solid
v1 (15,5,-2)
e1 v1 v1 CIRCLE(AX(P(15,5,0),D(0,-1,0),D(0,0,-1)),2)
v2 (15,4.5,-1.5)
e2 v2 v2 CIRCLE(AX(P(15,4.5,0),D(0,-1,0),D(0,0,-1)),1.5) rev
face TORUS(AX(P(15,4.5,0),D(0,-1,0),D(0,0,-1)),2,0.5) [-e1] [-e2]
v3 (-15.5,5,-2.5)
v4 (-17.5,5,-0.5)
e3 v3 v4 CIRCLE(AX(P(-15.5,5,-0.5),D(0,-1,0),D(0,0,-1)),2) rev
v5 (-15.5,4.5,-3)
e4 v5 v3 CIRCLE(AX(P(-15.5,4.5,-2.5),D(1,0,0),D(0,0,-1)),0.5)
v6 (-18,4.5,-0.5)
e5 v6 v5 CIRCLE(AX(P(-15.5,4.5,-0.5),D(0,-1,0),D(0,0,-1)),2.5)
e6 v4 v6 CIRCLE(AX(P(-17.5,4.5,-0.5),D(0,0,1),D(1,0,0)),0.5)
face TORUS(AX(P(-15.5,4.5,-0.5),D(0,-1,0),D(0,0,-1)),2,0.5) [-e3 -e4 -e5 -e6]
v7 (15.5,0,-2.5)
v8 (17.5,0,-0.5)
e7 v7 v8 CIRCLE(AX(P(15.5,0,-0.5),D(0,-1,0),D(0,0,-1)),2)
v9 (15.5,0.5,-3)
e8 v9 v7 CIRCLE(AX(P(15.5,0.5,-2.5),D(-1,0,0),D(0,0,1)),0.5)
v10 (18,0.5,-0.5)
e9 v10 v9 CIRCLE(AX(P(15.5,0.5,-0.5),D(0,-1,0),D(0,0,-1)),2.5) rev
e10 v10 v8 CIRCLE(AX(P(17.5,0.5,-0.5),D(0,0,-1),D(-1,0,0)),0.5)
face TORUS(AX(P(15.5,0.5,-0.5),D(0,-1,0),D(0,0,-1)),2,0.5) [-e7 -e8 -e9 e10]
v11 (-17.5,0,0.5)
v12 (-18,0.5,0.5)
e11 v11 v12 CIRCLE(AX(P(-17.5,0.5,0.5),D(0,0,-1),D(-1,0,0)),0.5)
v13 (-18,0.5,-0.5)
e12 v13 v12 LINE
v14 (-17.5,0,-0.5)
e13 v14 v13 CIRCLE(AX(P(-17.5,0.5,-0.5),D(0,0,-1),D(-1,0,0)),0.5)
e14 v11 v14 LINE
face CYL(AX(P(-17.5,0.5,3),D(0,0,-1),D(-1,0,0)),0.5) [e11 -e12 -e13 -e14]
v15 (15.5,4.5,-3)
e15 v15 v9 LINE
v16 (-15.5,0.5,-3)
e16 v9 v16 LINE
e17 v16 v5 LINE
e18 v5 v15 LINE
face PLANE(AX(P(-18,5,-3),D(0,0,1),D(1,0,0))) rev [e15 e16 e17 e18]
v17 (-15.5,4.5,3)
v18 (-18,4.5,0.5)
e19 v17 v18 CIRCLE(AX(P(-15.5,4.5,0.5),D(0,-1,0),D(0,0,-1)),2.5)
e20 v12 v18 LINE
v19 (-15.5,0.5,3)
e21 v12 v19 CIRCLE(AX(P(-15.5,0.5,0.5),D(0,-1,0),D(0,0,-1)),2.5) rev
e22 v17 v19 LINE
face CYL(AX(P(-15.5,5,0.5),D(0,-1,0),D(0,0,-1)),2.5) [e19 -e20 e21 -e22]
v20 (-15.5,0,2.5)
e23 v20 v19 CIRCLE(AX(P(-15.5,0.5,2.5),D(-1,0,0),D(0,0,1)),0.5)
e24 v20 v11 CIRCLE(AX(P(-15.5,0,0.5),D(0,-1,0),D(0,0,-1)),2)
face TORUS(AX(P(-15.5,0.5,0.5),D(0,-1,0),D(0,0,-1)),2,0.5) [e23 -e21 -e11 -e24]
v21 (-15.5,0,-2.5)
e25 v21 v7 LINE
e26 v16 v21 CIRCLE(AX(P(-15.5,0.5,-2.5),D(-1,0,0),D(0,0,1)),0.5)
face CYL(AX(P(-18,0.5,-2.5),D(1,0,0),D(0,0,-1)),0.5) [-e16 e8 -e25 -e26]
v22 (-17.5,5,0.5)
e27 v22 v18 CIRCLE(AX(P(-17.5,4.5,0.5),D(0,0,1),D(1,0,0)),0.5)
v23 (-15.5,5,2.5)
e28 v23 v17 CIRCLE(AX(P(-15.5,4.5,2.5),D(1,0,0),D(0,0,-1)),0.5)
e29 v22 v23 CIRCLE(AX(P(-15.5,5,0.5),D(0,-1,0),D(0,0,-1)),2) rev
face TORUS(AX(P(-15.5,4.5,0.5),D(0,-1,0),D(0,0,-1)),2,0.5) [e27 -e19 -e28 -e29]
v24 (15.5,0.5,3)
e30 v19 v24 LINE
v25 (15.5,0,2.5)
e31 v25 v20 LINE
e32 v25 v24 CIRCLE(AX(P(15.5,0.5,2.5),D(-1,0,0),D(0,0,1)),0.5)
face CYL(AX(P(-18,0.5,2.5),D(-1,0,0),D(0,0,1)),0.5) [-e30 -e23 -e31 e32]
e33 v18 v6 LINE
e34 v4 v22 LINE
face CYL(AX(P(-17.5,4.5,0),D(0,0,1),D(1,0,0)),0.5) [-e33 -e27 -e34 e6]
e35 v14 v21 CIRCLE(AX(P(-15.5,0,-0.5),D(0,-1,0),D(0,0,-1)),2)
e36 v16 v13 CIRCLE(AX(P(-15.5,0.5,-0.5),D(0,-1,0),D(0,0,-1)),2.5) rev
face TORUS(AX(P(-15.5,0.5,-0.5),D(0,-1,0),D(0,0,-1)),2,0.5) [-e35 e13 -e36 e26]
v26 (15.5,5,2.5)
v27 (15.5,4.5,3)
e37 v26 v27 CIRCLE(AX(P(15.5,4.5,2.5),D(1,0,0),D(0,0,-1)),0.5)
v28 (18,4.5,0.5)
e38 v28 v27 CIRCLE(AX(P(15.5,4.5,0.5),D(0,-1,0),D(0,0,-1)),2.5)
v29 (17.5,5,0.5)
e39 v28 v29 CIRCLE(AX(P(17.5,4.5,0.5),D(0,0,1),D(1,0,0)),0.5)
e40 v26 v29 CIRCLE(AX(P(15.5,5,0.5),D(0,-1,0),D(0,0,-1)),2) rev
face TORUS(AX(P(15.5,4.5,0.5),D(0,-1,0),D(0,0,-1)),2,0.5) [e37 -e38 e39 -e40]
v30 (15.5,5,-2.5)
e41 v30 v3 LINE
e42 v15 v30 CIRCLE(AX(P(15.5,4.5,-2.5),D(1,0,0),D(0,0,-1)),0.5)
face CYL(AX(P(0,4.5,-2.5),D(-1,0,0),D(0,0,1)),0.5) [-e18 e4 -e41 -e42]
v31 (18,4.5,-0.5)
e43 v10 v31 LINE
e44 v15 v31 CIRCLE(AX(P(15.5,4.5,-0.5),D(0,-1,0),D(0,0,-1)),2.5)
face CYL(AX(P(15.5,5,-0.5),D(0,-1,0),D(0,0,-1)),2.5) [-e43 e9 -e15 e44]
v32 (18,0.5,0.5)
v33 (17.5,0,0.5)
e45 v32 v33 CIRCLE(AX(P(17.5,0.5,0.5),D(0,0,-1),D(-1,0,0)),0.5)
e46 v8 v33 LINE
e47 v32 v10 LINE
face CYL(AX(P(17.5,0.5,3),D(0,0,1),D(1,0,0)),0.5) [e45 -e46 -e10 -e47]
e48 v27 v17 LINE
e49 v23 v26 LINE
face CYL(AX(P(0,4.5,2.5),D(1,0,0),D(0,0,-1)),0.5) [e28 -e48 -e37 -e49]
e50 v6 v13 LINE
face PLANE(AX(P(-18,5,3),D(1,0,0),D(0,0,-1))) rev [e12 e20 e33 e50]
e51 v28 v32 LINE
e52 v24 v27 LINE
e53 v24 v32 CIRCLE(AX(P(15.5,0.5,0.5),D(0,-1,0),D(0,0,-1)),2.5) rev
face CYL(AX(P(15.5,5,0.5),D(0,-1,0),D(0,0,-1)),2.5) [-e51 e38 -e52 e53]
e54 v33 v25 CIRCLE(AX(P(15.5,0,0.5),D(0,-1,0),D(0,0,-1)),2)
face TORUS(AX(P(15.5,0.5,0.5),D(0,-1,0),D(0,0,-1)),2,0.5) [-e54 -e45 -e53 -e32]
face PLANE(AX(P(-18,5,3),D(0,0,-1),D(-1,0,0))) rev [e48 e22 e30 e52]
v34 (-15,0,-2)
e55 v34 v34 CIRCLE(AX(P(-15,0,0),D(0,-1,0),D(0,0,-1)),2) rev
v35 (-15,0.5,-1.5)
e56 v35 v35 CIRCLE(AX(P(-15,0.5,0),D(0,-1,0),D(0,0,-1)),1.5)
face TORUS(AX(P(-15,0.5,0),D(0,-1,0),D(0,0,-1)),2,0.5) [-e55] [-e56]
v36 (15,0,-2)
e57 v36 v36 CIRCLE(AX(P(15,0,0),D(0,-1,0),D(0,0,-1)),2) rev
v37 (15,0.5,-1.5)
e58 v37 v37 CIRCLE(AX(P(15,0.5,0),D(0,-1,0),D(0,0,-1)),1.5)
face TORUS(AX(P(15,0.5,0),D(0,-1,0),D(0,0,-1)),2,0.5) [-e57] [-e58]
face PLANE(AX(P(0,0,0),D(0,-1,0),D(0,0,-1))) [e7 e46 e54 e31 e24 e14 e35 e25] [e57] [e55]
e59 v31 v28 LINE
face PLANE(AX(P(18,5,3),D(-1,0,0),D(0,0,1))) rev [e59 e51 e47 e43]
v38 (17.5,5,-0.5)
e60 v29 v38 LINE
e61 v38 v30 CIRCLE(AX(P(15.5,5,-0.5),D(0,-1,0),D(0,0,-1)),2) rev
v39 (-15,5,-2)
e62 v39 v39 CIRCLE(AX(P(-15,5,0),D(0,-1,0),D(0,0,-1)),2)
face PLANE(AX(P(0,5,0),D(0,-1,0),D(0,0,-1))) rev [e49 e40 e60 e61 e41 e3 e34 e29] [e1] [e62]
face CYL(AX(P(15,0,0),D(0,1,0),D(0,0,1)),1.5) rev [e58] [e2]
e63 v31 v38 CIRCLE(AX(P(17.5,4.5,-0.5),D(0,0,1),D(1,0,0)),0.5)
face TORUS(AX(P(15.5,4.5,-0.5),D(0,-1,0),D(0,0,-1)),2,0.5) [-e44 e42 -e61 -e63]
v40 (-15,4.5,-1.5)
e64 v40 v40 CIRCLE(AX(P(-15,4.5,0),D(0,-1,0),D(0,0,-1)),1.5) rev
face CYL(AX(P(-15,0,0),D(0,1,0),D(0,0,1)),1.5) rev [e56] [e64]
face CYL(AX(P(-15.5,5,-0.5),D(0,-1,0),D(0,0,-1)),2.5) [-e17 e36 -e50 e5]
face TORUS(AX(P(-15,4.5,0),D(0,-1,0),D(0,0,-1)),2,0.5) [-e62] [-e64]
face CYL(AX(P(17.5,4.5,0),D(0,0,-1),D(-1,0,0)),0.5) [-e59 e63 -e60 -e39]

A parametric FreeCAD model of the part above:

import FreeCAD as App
import Part
import Sketcher


def edges_at(feature, points):
    """Names of the edges that pass closest to the given points."""
    edges = feature.Shape.Edges
    near = lambda p: min(range(len(edges)), key=lambda i: edges[i].distToShape(Part.Vertex(*p))[0])
    return sorted({f"Edge{near(p) + 1}" for p in points})

doc = App.newDocument("Part")
body = doc.addObject("PartDesign::Body", "Body")

# Sketch on XZ plane
sketch1 = body.newObject("Sketcher::SketchObject", "Sketch")
sketch1.AttachmentSupport = (doc.getObject("XZ_Plane"), [""])
sketch1.MapMode = "FlatFace"
sketch1.addGeometry(Part.LineSegment(App.Vector(-18, -3, 0), App.Vector(-18, 3, 0)), False)
sketch1.addGeometry(Part.LineSegment(App.Vector(-18, 3, 0), App.Vector(18, 3, 0)), False)
sketch1.addGeometry(Part.LineSegment(App.Vector(18, 3, 0), App.Vector(18, -3, 0)), False)
sketch1.addGeometry(Part.LineSegment(App.Vector(18, -3, 0), App.Vector(-18, -3, 0)), False)
sketch1.addConstraint(Sketcher.Constraint("Coincident", 0, 2, 1, 1))
sketch1.addConstraint(Sketcher.Constraint("Coincident", 1, 2, 2, 1))
sketch1.addConstraint(Sketcher.Constraint("Coincident", 2, 2, 3, 1))
sketch1.addConstraint(Sketcher.Constraint("Coincident", 3, 2, 0, 1))
sketch1.addConstraint(Sketcher.Constraint("Vertical", 0))
sketch1.addConstraint(Sketcher.Constraint("Horizontal", 1))
sketch1.addConstraint(Sketcher.Constraint("Vertical", 2))
sketch1.addConstraint(Sketcher.Constraint("Horizontal", 3))
sketch1.addConstraint(Sketcher.Constraint("Symmetric", 0, 2, 2, 2, -1, 1))
sketch1.addConstraint(Sketcher.Constraint("DistanceX", 1, 1, 1, 2, 36.0))
sketch1.addConstraint(Sketcher.Constraint("DistanceY", 0, 1, 0, 2, 6.0))
pad1 = body.newObject("PartDesign::Pad", "Pad")
pad1.Profile = sketch1
pad1.Length = 5
pad1.Reversed = True

# Sketch on XZ plane
sketch2 = body.newObject("Sketcher::SketchObject", "Sketch001")
sketch2.AttachmentSupport = (doc.getObject("XZ_Plane"), [""])
sketch2.MapMode = "FlatFace"
sketch2.AttachmentOffset = App.Placement(App.Vector(0, 0, -5), App.Rotation())
sketch2.addGeometry(Part.Circle(App.Vector(-15, 0, 0), App.Vector(0, 0, 1), 1.5), False)
sketch2.addGeometry(Part.Circle(App.Vector(15, 0, 0), App.Vector(0, 0, 1), 1.5), False)
sketch2.addConstraint(Sketcher.Constraint("Equal", 0, 1))
sketch2.addConstraint(Sketcher.Constraint("Symmetric", 0, 3, 1, 3, -1, 1))
sketch2.addConstraint(Sketcher.Constraint("PointOnObject", 0, 3, -1))
sketch2.addConstraint(Sketcher.Constraint("Diameter", 0, 3.0))
sketch2.addConstraint(Sketcher.Constraint("DistanceX", 0, 3, -1, 1, 15.0))
pocket1 = body.newObject("PartDesign::Pocket", "Pocket")
pocket1.Profile = sketch2
pocket1.Type = "ThroughAll"
pocket1.Reversed = True
doc.recompute()

fillet = body.newObject("PartDesign::Fillet", "Fillet")
fillet.Base = (pocket1, edges_at(pocket1, [
    (18, 2.5, 3),
    (-18, 2.5, 3),
    (-18, 2.5, -3),
    (18, 2.5, -3),
]))
fillet.Radius = 2.5
doc.recompute()

fillet2 = body.newObject("PartDesign::Fillet", "Fillet001")
fillet2.Base = (fillet, edges_at(fillet, [
    (-15, 0, -1.5),
    (-15, 5, -1.5),
    (15, 0, -1.5),
    (15, 5, -1.5),
    (0, 0, -3),
    (0, 5, -3),
    (18, 0, 0),
    (0, 0, 3),
    (-18, 0, 0),
    (-17.268, 0, 2.268),
    (-17.268, 0, -2.268),
    (17.268, 0, 2.268),
    (17.268, 0, -2.268),
    (18, 5, 0),
    (-18, 5, 0),
    (0, 5, 3),
    (-17.268, 5, 2.268),
    (-17.268, 5, -2.268),
    (17.268, 5, 2.268),
    (17.268, 5, -2.268),
]))
fillet2.Radius = 0.5

doc.recompute()
